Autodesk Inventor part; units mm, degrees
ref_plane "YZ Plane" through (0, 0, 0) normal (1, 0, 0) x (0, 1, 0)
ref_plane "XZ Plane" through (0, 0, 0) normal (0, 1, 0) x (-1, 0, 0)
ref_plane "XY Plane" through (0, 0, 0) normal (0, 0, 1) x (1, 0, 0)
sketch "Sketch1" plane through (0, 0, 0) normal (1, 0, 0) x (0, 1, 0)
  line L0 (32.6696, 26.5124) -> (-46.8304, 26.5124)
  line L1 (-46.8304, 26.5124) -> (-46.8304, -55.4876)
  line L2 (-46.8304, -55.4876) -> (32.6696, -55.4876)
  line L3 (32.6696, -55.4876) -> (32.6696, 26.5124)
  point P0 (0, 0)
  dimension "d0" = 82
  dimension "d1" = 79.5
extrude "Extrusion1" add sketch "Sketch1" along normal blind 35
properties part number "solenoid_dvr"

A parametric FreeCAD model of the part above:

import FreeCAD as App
import Part
import Sketcher
Q = App.Units.Quantity

doc = App.newDocument("Part")
body = doc.addObject("PartDesign::Body", "Body")

# Sketch on YZ plane
sketch1 = body.newObject("Sketcher::SketchObject", "Sketch")
sketch1.AttachmentSupport = (doc.getObject("YZ_Plane"), [""])
sketch1.MapMode = "FlatFace"
sketch1.addGeometry([
    Part.LineSegment(App.Vector(33, -55, 0), App.Vector(33, 27, 0)),
    Part.LineSegment(App.Vector(33, 27, 0), App.Vector(-47, 27, 0)),
    Part.LineSegment(App.Vector(-47, 27, 0), App.Vector(-47, -55, 0)),
    Part.LineSegment(App.Vector(-47, -55, 0), App.Vector(33, -55, 0)),
], False)
sketch1.addConstraint([
    Sketcher.Constraint("Coincident", 0, 2, 1, 1),
    Sketcher.Constraint("Coincident", 1, 2, 2, 1),
    Sketcher.Constraint("Coincident", 2, 2, 3, 1),
    Sketcher.Constraint("Coincident", 3, 2, 0, 1),
    Sketcher.Constraint("Vertical", 0),
    Sketcher.Constraint("Horizontal", 1),
    Sketcher.Constraint("Vertical", 2),
    Sketcher.Constraint("Horizontal", 3),
    Sketcher.Constraint("DistanceY", 0, 1, 0, 2, Q("82 mm")),
    Sketcher.Constraint("DistanceX", 1, 2, 1, 1, Q("79.5 mm")),
    Sketcher.Constraint("DistanceX", -1, 1, 0, 2, Q("32.6696 mm")),
    Sketcher.Constraint("DistanceY", -1, 1, 0, 2, Q("26.5124 mm")),
])
pad1 = body.newObject("PartDesign::Pad", "Pad")
pad1.Profile = sketch1
pad1.Length = 35

doc.recompute()
